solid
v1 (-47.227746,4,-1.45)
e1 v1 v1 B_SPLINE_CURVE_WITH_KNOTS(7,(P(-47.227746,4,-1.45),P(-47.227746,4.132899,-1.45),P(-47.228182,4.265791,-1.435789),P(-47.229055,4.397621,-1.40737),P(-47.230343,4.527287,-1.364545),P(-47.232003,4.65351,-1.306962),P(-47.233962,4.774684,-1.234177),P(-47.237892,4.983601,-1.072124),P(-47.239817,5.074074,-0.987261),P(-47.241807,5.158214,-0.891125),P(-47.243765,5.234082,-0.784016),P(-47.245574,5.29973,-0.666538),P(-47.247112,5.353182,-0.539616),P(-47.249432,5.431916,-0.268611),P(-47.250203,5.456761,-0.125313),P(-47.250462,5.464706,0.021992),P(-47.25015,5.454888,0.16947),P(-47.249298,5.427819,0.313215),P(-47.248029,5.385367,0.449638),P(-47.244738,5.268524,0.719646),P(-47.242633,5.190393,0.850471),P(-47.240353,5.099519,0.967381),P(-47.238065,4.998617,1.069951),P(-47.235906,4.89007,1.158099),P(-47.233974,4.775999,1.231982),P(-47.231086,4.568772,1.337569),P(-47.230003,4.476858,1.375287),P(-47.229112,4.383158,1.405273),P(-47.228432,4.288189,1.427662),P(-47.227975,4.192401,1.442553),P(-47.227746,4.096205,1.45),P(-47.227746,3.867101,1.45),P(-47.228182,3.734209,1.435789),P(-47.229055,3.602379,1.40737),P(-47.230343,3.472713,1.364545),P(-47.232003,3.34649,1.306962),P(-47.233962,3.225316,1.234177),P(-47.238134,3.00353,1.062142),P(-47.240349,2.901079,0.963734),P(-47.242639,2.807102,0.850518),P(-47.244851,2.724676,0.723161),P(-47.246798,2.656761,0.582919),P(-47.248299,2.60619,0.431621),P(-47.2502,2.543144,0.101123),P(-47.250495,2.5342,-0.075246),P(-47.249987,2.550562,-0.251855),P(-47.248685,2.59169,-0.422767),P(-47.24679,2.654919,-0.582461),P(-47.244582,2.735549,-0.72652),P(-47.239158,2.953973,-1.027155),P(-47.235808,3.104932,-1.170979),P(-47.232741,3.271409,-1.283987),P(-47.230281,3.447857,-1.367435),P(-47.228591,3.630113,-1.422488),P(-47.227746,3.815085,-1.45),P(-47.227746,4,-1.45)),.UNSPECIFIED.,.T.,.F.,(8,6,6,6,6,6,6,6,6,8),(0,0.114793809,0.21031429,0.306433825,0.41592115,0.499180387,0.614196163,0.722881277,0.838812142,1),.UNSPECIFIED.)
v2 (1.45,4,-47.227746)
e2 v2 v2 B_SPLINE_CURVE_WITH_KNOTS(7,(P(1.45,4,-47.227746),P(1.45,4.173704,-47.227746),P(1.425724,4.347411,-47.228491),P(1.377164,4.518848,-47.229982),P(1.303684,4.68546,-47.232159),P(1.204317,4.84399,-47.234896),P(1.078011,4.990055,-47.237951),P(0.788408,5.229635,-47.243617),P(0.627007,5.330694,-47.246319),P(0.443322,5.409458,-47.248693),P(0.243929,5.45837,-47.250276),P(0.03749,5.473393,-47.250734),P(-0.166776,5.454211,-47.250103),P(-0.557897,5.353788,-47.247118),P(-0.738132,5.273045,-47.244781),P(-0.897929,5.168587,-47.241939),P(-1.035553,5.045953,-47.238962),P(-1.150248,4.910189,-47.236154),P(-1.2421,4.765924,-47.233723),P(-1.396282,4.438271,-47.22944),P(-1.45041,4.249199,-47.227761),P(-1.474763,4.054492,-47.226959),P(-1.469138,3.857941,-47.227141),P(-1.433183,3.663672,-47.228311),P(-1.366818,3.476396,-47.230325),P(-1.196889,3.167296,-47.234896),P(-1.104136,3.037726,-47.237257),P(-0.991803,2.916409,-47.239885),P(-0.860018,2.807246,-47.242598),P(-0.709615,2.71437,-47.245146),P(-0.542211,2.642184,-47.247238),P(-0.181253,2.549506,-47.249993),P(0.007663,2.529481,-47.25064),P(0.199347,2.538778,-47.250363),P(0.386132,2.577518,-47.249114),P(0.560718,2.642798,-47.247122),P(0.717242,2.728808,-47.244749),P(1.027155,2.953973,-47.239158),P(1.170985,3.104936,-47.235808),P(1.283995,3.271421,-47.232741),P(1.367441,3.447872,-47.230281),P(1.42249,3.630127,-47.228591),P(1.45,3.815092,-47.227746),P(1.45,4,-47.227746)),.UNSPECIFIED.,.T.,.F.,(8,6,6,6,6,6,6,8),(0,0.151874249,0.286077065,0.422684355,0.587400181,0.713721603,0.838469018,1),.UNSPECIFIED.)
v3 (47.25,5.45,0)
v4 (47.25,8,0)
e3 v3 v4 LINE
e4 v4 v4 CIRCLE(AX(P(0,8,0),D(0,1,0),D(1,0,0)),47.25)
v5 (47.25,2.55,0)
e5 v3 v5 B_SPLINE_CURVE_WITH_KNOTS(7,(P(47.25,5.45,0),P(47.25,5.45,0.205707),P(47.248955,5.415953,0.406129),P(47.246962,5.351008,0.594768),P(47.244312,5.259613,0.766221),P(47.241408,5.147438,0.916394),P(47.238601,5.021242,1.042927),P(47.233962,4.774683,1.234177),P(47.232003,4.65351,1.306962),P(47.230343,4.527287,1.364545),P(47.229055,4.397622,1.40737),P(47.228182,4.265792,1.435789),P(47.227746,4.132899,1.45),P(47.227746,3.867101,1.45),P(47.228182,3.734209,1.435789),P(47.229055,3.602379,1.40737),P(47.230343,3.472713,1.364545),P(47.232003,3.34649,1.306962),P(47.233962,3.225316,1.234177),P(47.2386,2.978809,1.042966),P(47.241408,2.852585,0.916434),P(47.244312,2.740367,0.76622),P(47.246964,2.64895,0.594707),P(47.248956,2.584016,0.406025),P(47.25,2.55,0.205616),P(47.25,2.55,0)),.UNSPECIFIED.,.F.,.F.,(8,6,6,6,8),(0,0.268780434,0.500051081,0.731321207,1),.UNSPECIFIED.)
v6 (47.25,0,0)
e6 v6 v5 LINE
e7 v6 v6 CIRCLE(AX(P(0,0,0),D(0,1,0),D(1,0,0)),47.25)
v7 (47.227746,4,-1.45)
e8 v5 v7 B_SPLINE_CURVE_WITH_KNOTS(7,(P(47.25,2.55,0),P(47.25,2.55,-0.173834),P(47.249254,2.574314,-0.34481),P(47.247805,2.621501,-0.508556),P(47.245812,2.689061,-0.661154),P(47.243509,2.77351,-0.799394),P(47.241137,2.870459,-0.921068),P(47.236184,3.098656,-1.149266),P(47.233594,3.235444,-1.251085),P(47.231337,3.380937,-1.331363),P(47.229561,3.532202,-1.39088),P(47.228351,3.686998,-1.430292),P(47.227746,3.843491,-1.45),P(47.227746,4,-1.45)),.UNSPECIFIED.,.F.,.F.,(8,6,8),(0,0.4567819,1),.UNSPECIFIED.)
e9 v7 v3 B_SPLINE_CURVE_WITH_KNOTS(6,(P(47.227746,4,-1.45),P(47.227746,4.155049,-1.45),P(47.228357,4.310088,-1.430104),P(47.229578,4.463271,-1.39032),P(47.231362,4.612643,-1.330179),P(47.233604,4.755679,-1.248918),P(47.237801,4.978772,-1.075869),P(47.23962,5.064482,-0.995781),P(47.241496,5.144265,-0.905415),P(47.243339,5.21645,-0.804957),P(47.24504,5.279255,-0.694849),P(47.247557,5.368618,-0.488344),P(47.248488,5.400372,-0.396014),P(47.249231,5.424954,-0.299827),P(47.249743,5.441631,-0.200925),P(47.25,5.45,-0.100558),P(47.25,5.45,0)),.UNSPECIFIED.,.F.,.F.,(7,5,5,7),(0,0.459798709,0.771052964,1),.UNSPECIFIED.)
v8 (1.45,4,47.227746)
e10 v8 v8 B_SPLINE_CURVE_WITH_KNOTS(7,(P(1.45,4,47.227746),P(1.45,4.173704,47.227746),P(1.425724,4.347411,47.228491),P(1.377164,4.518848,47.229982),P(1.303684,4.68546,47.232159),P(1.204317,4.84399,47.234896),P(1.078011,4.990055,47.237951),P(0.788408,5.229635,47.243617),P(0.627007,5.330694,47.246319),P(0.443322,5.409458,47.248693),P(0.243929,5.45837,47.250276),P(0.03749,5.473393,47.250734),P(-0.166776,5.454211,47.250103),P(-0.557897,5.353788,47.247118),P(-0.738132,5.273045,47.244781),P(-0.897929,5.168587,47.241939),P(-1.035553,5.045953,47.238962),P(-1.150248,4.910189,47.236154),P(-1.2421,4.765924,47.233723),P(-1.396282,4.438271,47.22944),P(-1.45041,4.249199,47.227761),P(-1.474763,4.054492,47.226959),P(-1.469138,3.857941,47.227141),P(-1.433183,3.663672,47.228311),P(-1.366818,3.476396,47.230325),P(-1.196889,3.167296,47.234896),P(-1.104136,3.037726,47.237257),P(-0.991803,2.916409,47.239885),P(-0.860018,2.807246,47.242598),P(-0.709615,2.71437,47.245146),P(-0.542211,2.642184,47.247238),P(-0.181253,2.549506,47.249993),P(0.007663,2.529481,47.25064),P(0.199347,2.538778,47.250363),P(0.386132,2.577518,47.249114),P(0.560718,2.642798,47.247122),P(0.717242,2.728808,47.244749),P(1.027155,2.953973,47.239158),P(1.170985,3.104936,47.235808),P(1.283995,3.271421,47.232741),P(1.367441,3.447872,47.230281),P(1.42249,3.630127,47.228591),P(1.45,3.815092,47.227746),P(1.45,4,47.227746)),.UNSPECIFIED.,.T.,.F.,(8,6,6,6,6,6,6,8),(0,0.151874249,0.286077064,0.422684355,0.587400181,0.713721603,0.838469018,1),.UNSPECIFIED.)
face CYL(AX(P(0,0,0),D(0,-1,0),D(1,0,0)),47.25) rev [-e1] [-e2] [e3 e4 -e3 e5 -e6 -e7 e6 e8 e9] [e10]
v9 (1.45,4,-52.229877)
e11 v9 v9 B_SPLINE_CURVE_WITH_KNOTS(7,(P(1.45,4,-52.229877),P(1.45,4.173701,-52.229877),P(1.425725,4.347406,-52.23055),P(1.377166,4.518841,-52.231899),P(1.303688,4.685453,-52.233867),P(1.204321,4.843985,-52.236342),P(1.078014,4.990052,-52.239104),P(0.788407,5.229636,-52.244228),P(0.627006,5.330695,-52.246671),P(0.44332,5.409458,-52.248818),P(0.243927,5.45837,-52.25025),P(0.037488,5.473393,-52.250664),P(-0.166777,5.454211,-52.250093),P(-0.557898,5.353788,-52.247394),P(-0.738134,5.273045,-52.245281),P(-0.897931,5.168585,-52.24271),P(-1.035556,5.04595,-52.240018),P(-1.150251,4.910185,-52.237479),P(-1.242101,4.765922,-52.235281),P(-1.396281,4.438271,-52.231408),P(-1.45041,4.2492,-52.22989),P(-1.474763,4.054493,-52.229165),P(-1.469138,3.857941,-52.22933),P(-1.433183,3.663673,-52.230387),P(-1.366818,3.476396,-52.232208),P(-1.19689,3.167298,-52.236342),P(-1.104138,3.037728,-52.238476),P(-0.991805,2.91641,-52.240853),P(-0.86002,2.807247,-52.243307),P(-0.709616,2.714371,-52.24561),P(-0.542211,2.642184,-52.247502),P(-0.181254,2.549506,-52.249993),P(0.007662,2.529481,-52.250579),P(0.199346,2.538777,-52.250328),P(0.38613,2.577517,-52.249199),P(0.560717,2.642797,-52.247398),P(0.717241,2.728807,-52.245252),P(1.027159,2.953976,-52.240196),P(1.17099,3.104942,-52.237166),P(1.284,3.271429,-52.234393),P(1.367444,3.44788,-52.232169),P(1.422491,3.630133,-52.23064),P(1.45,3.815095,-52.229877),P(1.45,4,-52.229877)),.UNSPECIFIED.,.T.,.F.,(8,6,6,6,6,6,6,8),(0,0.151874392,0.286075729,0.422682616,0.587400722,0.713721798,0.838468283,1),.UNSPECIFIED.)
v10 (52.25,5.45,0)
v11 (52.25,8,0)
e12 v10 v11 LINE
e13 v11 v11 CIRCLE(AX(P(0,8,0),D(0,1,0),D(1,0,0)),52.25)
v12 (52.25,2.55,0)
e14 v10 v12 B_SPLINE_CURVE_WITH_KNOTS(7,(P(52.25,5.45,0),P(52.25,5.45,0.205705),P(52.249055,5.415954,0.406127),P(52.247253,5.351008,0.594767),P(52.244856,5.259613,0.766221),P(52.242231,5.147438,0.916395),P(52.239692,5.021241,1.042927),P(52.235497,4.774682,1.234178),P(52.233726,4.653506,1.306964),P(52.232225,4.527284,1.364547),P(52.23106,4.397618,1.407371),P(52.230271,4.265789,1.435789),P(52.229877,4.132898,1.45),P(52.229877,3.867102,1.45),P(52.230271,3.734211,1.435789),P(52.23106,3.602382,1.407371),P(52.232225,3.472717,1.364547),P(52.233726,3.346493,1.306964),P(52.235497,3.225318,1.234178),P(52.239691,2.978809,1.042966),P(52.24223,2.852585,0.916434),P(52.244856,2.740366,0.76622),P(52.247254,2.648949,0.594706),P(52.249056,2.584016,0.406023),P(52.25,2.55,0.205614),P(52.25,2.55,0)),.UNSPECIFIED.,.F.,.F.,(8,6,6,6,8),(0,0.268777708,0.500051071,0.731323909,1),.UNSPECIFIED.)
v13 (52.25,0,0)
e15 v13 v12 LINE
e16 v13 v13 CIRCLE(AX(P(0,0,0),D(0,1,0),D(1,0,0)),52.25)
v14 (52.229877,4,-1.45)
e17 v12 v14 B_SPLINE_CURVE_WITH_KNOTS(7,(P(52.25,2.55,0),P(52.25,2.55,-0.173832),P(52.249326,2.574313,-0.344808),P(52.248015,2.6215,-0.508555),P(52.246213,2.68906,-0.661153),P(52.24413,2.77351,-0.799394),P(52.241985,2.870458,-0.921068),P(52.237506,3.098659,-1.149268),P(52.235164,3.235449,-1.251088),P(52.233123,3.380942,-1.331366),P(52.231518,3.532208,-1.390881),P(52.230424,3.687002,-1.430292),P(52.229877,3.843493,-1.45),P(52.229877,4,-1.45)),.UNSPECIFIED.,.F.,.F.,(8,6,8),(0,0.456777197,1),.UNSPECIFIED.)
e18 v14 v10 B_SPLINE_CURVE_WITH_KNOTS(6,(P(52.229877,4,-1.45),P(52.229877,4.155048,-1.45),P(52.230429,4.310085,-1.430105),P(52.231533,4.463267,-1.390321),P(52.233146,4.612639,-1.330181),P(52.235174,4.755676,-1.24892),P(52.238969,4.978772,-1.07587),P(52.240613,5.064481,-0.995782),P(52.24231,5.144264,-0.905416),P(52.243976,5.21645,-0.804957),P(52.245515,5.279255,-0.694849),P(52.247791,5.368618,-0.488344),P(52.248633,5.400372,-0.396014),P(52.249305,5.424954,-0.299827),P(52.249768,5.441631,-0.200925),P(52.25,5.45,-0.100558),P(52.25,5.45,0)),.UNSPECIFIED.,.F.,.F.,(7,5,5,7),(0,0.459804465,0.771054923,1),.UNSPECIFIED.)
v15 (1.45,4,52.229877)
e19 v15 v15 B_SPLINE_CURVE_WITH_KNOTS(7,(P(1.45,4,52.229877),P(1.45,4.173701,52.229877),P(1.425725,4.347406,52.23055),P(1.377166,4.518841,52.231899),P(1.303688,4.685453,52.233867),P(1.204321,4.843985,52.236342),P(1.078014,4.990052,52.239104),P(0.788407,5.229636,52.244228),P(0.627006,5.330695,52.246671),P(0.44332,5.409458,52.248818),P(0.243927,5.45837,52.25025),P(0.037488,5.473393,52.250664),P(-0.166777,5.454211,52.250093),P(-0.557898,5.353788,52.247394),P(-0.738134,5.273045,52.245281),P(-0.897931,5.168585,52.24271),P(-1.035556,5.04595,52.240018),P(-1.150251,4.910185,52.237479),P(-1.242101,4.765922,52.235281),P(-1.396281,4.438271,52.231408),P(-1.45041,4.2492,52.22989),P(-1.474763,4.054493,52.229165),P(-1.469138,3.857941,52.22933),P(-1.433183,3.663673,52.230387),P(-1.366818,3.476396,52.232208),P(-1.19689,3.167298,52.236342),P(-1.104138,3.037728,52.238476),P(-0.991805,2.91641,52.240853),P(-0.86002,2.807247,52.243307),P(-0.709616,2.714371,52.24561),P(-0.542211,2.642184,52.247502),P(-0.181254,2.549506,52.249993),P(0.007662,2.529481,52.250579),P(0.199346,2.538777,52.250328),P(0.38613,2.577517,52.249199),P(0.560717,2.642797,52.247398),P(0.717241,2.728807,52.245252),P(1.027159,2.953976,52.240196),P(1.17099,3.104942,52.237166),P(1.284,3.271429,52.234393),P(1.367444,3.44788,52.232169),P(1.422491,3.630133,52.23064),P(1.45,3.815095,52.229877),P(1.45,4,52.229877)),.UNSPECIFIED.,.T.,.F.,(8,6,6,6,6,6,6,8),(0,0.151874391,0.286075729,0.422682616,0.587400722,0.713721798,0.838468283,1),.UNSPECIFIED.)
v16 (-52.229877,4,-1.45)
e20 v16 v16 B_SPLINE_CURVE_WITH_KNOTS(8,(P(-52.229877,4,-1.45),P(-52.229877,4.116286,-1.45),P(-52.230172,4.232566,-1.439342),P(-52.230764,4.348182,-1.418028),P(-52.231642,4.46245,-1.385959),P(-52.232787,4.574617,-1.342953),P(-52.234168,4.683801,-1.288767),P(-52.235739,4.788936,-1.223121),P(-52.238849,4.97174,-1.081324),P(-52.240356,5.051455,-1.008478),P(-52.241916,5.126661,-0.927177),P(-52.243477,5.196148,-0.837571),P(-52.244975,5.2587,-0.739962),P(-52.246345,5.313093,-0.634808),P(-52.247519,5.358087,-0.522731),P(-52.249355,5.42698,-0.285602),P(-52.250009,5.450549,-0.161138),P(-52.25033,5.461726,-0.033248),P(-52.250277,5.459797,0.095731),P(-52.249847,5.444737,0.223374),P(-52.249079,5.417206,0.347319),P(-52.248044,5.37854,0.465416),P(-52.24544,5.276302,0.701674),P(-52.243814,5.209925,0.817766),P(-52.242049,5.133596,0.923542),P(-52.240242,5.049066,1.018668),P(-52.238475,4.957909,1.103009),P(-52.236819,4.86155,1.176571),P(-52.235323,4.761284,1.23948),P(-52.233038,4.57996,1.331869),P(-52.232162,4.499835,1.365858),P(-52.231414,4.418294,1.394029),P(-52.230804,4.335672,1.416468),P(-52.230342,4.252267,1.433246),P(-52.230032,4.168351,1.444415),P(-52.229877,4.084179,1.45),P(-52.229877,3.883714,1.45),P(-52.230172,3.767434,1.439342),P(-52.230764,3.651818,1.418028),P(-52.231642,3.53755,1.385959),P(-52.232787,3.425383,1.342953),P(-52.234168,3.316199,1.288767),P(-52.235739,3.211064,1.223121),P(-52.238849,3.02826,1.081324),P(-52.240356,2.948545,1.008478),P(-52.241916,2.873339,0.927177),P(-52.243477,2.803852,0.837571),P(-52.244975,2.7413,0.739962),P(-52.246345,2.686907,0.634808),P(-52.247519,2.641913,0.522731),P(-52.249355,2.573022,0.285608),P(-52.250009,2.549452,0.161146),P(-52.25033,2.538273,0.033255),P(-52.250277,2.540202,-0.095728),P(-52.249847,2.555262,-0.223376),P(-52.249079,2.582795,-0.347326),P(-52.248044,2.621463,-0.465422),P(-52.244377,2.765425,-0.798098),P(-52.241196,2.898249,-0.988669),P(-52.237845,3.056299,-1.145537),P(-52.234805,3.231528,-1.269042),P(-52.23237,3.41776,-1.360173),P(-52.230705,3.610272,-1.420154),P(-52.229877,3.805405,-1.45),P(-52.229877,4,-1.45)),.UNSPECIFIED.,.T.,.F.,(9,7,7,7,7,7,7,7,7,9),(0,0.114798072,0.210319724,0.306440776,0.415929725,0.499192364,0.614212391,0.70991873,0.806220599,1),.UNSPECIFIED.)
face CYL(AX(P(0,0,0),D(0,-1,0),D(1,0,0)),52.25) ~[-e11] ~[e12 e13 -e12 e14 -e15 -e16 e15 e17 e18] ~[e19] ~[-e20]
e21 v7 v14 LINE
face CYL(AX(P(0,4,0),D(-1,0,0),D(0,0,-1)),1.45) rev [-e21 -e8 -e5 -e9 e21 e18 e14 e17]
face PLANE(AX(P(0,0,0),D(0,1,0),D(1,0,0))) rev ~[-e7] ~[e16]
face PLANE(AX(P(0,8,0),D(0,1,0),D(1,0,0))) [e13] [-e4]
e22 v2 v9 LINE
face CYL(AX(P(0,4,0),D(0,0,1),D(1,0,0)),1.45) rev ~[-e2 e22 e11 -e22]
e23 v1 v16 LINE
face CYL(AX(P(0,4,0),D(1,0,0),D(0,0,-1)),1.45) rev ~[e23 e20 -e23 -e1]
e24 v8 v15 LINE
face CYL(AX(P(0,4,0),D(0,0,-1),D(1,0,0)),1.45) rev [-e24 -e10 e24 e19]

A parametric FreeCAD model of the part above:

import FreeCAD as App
import Part
import Sketcher
Q = App.Units.Quantity

doc = App.newDocument("Part")
params = doc.addObject("Spreadsheet::Sheet", "Params")
for row, (alias, value) in enumerate([
    ("sketch1_diameter", "104.5 mm"),
    ("sketch1_diameter2", "94.5 mm"),
    ("pad1_length", "8 mm"),
    ("sketch2_diameter", "2.9 mm"),
    ("sketch3_diameter", "2.9 mm"),
], start=1):
    params.set(f"A{row}", alias)
    params.set(f"B{row}", "=" + value)
    params.setAlias(f"B{row}", alias)

body = doc.addObject("PartDesign::Body", "Body")

sketch1 = doc.addObject("Sketcher::SketchObject", "Sketch")
body.addObject(sketch1)
sketch1.AttachmentSupport = (doc.XZ_Plane, [""])
sketch1.MapMode = "FlatFace"
sketch1.addGeometry([
    Part.Circle(App.Vector(0, 0, 0), App.Vector(0, 0, 1), 52),
    Part.Circle(App.Vector(0, 0, 0), App.Vector(0, 0, 1), 47),
], False)
sketch1.addConstraint([
    Sketcher.Constraint("Coincident", 0, 3, -1, 1),
    Sketcher.Constraint("Coincident", 1, 3, -1, 1),
    Sketcher.Constraint("Diameter", 0, Q("104.5 mm")),
    Sketcher.Constraint("Diameter", 1, Q("94.5 mm")),
])
sketch1.setExpression("Constraints[2]", "Params.sketch1_diameter")
sketch1.setExpression("Constraints[3]", "Params.sketch1_diameter2")
pad1 = doc.addObject("PartDesign::Pad", "Pad")
body.addObject(pad1)
pad1.Profile = sketch1
pad1.setExpression("Length", "Params.pad1_length")
pad1.Reversed = True

sketch2 = doc.addObject("Sketcher::SketchObject", "Sketch001")
body.addObject(sketch2)
sketch2.AttachmentSupport = (doc.XY_Plane, [""])
sketch2.MapMode = "FlatFace"
sketch2.addGeometry(Part.Circle(App.Vector(0, 4, 0), App.Vector(0, 0, 1), 1.4), False)
sketch2.addConstraint([
    Sketcher.Constraint("PointOnObject", 0, 3, -2),
    Sketcher.Constraint("Diameter", 0, Q("2.9 mm")),
    Sketcher.Constraint("DistanceY", -1, 1, 0, 3, Q("4 mm")),
])
sketch2.setExpression("Constraints[1]", "Params.sketch2_diameter")
pocket1 = doc.addObject("PartDesign::Pocket", "Pocket")
body.addObject(pocket1)
pocket1.Profile = sketch2
pocket1.Type = "ThroughAll"
pocket1.Midplane = True

sketch3 = doc.addObject("Sketcher::SketchObject", "Sketch002")
body.addObject(sketch3)
sketch3.AttachmentSupport = (doc.YZ_Plane, [""])
sketch3.MapMode = "FlatFace"
sketch3.addGeometry(Part.Circle(App.Vector(4, 0, 0), App.Vector(0, 0, 1), 1.4), False)
sketch3.addConstraint([
    Sketcher.Constraint("PointOnObject", 0, 3, -1),
    Sketcher.Constraint("Diameter", 0, Q("2.9 mm")),
    Sketcher.Constraint("DistanceX", -1, 1, 0, 3, Q("4 mm")),
])
sketch3.setExpression("Constraints[1]", "Params.sketch3_diameter")
pocket2 = doc.addObject("PartDesign::Pocket", "Pocket001")
body.addObject(pocket2)
pocket2.Profile = sketch3
pocket2.Type = "ThroughAll"
pocket2.Midplane = True

doc.recompute()
